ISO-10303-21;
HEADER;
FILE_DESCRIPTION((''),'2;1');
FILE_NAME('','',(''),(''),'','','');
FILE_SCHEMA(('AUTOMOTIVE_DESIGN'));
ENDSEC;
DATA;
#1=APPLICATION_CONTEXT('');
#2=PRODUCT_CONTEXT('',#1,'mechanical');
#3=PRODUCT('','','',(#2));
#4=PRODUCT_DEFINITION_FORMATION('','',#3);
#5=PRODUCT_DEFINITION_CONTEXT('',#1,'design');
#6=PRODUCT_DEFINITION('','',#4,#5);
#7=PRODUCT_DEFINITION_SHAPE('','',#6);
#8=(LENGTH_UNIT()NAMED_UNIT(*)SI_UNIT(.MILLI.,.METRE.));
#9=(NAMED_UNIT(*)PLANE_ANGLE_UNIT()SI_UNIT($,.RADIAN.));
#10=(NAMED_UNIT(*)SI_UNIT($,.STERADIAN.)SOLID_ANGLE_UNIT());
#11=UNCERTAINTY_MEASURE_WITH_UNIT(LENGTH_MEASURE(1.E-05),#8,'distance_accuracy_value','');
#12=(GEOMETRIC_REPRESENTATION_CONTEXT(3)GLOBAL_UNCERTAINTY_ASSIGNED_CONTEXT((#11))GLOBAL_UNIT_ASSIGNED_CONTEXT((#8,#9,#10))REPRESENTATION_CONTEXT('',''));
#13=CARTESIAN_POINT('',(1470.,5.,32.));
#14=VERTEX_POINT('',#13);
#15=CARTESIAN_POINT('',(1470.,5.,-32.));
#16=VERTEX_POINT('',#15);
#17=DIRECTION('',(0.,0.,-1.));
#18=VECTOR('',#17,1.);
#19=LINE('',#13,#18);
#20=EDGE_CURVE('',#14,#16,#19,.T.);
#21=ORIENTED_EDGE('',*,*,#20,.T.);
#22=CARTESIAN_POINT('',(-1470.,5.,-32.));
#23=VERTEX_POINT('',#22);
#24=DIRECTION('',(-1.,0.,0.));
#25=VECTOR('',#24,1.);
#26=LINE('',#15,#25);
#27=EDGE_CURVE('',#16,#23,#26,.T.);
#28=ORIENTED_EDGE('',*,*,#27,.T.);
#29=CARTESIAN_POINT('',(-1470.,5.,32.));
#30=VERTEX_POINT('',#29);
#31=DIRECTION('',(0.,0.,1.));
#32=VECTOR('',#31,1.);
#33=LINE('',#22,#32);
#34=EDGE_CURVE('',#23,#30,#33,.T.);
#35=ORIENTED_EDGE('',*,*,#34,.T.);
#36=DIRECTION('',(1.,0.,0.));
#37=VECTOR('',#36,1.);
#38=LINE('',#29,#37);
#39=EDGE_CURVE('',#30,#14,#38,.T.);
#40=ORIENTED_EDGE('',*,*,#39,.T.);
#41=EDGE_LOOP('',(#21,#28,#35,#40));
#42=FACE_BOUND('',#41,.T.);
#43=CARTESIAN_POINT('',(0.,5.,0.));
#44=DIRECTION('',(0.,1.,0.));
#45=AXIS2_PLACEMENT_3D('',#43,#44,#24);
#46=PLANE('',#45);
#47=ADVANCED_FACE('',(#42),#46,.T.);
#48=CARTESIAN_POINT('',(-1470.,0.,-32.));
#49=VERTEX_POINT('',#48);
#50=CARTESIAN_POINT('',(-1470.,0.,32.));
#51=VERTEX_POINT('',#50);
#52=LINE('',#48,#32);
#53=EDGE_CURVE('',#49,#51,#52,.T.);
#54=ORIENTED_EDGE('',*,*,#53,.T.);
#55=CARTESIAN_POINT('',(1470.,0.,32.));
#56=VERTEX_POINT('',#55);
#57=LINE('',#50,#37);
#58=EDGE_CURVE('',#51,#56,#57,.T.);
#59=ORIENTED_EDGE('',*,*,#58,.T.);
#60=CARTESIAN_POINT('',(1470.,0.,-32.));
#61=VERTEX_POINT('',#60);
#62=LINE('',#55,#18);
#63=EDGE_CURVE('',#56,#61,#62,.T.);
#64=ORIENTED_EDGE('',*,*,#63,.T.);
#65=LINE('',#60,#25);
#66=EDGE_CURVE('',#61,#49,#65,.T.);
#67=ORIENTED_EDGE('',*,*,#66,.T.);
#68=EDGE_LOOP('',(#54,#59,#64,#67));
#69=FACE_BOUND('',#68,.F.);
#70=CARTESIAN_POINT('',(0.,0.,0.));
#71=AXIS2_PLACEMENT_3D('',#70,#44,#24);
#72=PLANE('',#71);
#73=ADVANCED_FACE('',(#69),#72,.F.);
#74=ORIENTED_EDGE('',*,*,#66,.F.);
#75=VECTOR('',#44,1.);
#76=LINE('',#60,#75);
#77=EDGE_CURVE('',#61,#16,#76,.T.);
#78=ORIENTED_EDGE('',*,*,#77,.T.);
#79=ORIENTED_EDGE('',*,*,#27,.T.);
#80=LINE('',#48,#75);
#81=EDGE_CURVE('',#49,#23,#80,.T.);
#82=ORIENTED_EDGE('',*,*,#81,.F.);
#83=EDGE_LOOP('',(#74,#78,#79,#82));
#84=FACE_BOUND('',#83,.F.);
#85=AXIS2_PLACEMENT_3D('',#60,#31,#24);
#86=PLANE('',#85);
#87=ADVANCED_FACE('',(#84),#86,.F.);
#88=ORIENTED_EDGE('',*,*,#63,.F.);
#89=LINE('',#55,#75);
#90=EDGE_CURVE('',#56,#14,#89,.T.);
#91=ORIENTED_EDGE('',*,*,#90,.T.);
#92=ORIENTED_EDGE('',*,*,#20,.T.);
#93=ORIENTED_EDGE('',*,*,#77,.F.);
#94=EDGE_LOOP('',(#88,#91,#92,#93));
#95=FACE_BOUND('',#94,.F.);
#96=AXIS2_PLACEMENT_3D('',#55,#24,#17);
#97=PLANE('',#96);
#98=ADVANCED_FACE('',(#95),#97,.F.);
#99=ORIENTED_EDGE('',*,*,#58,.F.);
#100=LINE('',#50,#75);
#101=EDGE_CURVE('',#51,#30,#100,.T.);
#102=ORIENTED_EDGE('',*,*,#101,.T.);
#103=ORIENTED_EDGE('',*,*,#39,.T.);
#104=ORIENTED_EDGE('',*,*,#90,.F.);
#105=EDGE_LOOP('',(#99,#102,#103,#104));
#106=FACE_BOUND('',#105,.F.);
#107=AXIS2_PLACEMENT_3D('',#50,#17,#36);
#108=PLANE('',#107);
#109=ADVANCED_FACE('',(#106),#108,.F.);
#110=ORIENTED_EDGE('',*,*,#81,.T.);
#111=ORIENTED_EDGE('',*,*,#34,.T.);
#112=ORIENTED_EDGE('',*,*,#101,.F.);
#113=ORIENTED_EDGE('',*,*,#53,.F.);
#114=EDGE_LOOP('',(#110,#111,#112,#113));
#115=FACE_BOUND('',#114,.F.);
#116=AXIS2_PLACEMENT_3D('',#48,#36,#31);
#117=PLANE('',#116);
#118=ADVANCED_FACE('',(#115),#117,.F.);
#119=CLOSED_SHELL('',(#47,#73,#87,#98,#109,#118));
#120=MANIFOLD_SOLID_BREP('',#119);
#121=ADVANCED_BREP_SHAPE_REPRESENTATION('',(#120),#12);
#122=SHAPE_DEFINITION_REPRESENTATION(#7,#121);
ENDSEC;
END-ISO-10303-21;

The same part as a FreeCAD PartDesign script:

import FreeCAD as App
import Part
import Sketcher

V = App.Vector
Q = App.Units.Quantity

doc = App.newDocument("Part")
params = doc.addObject("Spreadsheet::Sheet", "Params")
for row, (alias, value) in enumerate([
    ("sketch1_width", "2940 mm"),
    ("sketch1_height", "64 mm"),
    ("pad1_length", "5 mm"),
], start=1):
    params.set(f"A{row}", alias)
    params.set(f"B{row}", "=" + value)
    params.setAlias(f"B{row}", alias)

body = doc.addObject("PartDesign::Body", "Body")

sketch1 = body.newObject("Sketcher::SketchObject", "Sketch")
sketch1.AttachmentSupport = (doc.getObject("XZ_Plane"), [""])
sketch1.MapMode = "FlatFace"
sketch1.addGeometry(Part.LineSegment(V(-1470, -32, 0), V(-1470, 32, 0)), False)
sketch1.addGeometry(Part.LineSegment(V(-1470, 32, 0), V(1470, 32, 0)), False)
sketch1.addGeometry(Part.LineSegment(V(1470, 32, 0), V(1470, -32, 0)), False)
sketch1.addGeometry(Part.LineSegment(V(1470, -32, 0), V(-1470, -32, 0)), False)
sketch1.addConstraint(Sketcher.Constraint("Coincident", 0, 2, 1, 1))
sketch1.addConstraint(Sketcher.Constraint("Coincident", 1, 2, 2, 1))
sketch1.addConstraint(Sketcher.Constraint("Coincident", 2, 2, 3, 1))
sketch1.addConstraint(Sketcher.Constraint("Coincident", 3, 2, 0, 1))
sketch1.addConstraint(Sketcher.Constraint("Vertical", 0))
sketch1.addConstraint(Sketcher.Constraint("Horizontal", 1))
sketch1.addConstraint(Sketcher.Constraint("Vertical", 2))
sketch1.addConstraint(Sketcher.Constraint("Horizontal", 3))
sketch1.addConstraint(Sketcher.Constraint("Symmetric", 0, 2, 2, 2, -1, 1))
sketch1.addConstraint(Sketcher.Constraint("DistanceX", 1, 1, 1, 2, Q("2940 mm")))
sketch1.addConstraint(Sketcher.Constraint("DistanceY", 0, 1, 0, 2, Q("64 mm")))
sketch1.setExpression("Constraints[9]", "Params.sketch1_width")
sketch1.setExpression("Constraints[10]", "Params.sketch1_height")
pad1 = body.newObject("PartDesign::Pad", "Pad")
pad1.Profile = sketch1
pad1.setExpression("Length", "Params.pad1_length")
pad1.Reversed = True

doc.recompute()
